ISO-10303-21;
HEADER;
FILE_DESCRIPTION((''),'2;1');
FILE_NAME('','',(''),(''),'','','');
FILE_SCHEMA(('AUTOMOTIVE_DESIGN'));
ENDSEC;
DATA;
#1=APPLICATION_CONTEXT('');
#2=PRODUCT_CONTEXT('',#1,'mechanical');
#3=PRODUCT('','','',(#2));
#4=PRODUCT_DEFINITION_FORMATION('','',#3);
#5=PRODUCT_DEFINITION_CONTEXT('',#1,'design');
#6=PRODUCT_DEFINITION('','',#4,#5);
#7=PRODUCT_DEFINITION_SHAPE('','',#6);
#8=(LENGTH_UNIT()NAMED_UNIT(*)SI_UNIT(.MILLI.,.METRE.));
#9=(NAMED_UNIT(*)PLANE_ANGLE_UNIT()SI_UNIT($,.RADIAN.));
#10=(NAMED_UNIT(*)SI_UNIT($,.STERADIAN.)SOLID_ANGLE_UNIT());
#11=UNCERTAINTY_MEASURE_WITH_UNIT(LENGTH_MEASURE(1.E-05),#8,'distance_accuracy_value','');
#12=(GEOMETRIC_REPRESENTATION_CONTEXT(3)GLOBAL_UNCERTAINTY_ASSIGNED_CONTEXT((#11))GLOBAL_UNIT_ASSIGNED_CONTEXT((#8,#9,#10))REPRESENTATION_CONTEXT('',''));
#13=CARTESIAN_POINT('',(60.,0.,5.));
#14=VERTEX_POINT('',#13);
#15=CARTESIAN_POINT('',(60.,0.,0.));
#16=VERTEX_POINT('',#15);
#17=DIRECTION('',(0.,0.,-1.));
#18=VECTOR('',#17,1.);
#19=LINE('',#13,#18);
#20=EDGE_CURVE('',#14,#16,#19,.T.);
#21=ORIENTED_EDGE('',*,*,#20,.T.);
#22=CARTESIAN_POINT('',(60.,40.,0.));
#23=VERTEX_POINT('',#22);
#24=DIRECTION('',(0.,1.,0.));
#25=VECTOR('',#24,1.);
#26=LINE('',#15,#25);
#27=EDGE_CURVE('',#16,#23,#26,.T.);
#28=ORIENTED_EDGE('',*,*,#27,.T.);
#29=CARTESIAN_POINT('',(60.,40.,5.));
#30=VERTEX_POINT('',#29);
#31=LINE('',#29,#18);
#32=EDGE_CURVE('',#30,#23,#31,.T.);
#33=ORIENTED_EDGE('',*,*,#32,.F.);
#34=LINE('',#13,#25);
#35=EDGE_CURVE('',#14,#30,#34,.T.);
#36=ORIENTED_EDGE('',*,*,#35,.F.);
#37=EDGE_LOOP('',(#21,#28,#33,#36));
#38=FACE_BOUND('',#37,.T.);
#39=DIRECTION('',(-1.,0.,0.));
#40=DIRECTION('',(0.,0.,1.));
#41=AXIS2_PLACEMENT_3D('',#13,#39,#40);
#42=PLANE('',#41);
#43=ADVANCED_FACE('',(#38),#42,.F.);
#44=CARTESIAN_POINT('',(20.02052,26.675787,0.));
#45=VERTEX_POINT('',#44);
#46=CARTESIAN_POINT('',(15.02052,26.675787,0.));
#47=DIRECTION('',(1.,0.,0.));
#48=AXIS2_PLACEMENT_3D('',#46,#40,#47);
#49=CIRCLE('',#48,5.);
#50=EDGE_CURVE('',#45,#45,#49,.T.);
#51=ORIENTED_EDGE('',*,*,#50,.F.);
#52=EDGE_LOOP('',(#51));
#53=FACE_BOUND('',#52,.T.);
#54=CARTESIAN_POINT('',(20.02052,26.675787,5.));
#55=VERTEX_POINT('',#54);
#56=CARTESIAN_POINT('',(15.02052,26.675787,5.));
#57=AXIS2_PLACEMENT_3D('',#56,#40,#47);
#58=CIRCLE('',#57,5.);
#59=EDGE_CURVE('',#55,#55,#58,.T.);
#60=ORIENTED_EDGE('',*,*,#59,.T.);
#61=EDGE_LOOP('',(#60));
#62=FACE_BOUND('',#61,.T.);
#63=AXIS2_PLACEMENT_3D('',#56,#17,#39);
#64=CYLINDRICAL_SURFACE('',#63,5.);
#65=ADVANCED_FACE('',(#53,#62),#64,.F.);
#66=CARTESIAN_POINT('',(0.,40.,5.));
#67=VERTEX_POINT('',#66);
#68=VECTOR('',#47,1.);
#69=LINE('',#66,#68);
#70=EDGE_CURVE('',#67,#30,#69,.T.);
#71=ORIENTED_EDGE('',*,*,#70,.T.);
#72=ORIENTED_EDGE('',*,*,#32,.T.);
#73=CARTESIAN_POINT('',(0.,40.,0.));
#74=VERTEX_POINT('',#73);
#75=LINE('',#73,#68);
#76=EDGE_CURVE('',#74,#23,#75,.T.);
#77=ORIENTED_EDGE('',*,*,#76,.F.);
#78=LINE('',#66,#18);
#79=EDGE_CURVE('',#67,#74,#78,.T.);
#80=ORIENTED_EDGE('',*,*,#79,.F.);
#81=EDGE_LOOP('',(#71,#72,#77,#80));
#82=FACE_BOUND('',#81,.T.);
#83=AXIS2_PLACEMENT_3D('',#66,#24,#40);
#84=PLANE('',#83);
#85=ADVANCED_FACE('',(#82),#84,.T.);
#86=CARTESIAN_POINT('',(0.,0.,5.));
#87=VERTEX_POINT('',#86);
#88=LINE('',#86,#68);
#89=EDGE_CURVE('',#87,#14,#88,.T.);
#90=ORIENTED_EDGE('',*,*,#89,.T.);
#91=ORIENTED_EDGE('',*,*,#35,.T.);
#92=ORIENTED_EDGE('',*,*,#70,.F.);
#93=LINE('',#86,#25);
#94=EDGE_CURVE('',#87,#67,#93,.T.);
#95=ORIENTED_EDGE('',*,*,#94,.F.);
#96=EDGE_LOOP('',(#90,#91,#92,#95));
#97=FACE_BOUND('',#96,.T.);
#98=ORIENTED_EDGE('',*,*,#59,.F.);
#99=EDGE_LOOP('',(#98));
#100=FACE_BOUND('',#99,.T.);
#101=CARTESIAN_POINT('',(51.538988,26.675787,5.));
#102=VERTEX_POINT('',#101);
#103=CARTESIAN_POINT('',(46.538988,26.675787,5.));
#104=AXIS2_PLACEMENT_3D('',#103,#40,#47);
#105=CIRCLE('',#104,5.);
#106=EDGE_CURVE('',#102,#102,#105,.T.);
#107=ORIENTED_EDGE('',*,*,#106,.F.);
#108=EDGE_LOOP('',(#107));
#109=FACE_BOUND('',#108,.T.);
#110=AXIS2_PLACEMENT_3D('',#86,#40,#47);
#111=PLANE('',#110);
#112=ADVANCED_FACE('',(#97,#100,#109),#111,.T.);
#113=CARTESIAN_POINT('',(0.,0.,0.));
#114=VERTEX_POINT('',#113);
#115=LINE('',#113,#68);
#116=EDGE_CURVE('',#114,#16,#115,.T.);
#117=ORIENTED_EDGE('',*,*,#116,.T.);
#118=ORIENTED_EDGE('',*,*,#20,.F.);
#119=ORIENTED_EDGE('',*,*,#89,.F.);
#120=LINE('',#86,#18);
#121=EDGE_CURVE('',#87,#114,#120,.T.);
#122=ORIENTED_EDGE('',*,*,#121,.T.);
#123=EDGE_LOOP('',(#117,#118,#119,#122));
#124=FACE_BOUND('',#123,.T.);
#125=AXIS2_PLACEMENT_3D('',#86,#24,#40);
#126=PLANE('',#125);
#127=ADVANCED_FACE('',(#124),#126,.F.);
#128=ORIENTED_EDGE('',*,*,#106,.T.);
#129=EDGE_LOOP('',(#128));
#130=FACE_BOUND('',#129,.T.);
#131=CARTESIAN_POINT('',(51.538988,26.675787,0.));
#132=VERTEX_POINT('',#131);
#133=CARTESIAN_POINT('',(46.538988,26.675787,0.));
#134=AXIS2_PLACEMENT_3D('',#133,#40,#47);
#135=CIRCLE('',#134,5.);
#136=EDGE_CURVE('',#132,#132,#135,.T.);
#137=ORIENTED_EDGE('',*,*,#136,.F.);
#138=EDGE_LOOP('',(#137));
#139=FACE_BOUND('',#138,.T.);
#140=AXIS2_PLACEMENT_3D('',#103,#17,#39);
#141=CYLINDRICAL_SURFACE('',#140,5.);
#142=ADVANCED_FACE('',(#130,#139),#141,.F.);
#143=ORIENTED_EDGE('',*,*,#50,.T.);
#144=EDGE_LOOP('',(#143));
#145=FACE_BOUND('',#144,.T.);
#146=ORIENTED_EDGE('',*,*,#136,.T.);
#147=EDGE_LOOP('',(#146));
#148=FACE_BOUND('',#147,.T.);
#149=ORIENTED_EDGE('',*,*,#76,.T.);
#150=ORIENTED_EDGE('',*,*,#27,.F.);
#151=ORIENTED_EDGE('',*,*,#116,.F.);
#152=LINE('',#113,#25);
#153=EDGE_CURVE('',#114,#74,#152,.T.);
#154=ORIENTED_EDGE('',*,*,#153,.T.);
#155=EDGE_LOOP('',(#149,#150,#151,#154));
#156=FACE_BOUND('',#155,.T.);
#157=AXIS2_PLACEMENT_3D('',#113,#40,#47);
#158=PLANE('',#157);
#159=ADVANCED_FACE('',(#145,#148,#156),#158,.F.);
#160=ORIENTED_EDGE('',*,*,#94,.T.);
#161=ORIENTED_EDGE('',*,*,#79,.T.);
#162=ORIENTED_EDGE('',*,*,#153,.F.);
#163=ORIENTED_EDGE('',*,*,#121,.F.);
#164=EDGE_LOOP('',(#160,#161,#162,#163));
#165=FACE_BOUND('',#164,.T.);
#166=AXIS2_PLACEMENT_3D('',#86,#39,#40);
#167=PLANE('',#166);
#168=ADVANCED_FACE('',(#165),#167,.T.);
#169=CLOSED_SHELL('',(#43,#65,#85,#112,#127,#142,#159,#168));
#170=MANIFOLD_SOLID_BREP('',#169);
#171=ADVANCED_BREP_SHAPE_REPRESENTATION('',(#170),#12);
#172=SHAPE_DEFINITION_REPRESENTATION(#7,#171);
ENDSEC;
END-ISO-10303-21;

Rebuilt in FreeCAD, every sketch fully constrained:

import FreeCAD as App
import Part
import Sketcher
from FreeCAD import Vector

doc = App.newDocument("Part")
body = doc.addObject("PartDesign::Body", "Body")

sketch1 = body.newObject("Sketcher::SketchObject", "Sketch")
sketch1.AttachmentSupport = (doc.getObject("XY_Plane"), [""])
sketch1.MapMode = "FlatFace"
sketch1.addGeometry([
    Part.LineSegment(Vector(0, 40, 0), Vector(0, 0, 0)),
    Part.LineSegment(Vector(0, 0, 0), Vector(60, 0, 0)),
    Part.LineSegment(Vector(60, 0, 0), Vector(60, 40, 0)),
    Part.LineSegment(Vector(60, 40, 0), Vector(0, 40, 0)),
    Part.Circle(Vector(15, 27, 0), Vector(0, 0, 1), 5),
    Part.Circle(Vector(47, 27, 0), Vector(0, 0, 1), 5),
], False)
sketch1.addConstraint([
    Sketcher.Constraint("Coincident", 0, 2, 1, 1),
    Sketcher.Constraint("Coincident", 1, 2, 2, 1),
    Sketcher.Constraint("Coincident", 2, 2, 3, 1),
    Sketcher.Constraint("Coincident", 3, 2, 0, 1),
    Sketcher.Constraint("Vertical", 0),
    Sketcher.Constraint("Horizontal", 1),
    Sketcher.Constraint("Vertical", 2),
    Sketcher.Constraint("Horizontal", 3),
    Sketcher.Constraint("Coincident", 0, 2, -1, 1),
    Sketcher.Constraint("Equal", 4, 5),
    Sketcher.Constraint("Horizontal", 4, 3, 5, 3),
    Sketcher.Constraint("Diameter", 4, 10.0),
    Sketcher.Constraint("DistanceX", 1, 1, 1, 2, 60.0),
    Sketcher.Constraint("DistanceY", 0, 2, 0, 1, 40.0),
    Sketcher.Constraint("DistanceX", -1, 1, 4, 3, 15.02052),
    Sketcher.Constraint("DistanceY", -1, 1, 4, 3, 26.675787),
    Sketcher.Constraint("DistanceX", -1, 1, 5, 3, 46.538988),
])
pad1 = body.newObject("PartDesign::Pad", "Pad")
pad1.Profile = sketch1
pad1.Length = 5

doc.recompute()
